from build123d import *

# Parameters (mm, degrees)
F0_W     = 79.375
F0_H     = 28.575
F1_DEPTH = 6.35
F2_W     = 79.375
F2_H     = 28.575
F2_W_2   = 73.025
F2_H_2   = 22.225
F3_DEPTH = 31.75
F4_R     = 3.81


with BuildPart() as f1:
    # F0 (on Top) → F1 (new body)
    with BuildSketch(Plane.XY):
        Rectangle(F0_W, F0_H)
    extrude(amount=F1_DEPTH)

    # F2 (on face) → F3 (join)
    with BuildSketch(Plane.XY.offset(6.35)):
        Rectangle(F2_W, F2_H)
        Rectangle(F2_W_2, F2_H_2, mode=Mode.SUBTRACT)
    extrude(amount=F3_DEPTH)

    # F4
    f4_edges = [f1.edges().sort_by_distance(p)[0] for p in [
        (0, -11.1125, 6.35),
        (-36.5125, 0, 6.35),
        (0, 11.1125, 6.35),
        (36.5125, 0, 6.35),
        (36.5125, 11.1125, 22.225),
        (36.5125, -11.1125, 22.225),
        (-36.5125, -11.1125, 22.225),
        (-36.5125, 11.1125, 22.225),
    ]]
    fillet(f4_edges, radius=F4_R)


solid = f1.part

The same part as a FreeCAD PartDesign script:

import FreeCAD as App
import Part
import Sketcher
Q = App.Units.Quantity


def edges_at(feature, points):
    """Names of the edges that pass closest to the given points."""
    edges = feature.Shape.Edges
    near = lambda p: min(range(len(edges)), key=lambda i: edges[i].distToShape(Part.Vertex(*p))[0])
    return sorted({f"Edge{near(p) + 1}" for p in points})


def add_polygon(sketch, points):
    """Adds a closed chain of lines whose ends are joined by coincident constraints."""
    first, n = sketch.GeometryCount, len(points)
    for a, b in zip(points, points[1:] + points[:1]):
        sketch.addGeometry(Part.LineSegment(App.Vector(*a, 0), App.Vector(*b, 0)), False)
    for i in range(n):
        sketch.addConstraint(Sketcher.Constraint("Coincident", first + i, 2, first + (i + 1) % n, 1))

doc = App.newDocument("Part")
body = doc.addObject("PartDesign::Body", "Body")

sketch1 = body.newObject("Sketcher::SketchObject", "Sketch")
sketch1.AttachmentSupport = (doc.getObject("XY_Plane"), [""])
sketch1.MapMode = "FlatFace"
add_polygon(sketch1, [(-40, 14), (-40, -14), (40, -14), (40, 14)])
sketch1.addConstraint([
    Sketcher.Constraint("Vertical", 0),
    Sketcher.Constraint("Horizontal", 1),
    Sketcher.Constraint("Vertical", 2),
    Sketcher.Constraint("Horizontal", 3),
    Sketcher.Constraint("Symmetric", 0, 2, 2, 2, -1, 1),
    Sketcher.Constraint("DistanceX", 1, 1, 1, 2, Q("3.125 in")),
    Sketcher.Constraint("DistanceY", 0, 2, 0, 1, Q("1.125 in")),
])
pad1 = body.newObject("PartDesign::Pad", "Pad")
pad1.Profile = sketch1
pad1.Length = Q("0.25 in")

sketch2 = body.newObject("Sketcher::SketchObject", "Sketch001")
sketch2.AttachmentSupport = (doc.getObject("XY_Plane"), [""])
sketch2.MapMode = "FlatFace"
sketch2.AttachmentOffset = App.Placement(App.Vector(0, 0, 0.25 * 25.4), App.Rotation())
add_polygon(sketch2, [(-40, 14), (-40, -14), (40, -14), (40, 14)])
add_polygon(sketch2, [(37, -11), (-37, -11), (-37, 11), (37, 11)])
sketch2.addConstraint([
    Sketcher.Constraint("Vertical", 0),
    Sketcher.Constraint("Horizontal", 1),
    Sketcher.Constraint("Vertical", 2),
    Sketcher.Constraint("Horizontal", 3),
    Sketcher.Constraint("Horizontal", 4),
    Sketcher.Constraint("Vertical", 5),
    Sketcher.Constraint("Horizontal", 6),
    Sketcher.Constraint("Vertical", 7),
    Sketcher.Constraint("Symmetric", 0, 2, 2, 2, -1, 1),
    Sketcher.Constraint("Symmetric", 4, 2, 6, 2, -1, 1),
    Sketcher.Constraint("DistanceY", 4, 2, 3, 2, Q("1 in")),
    Sketcher.Constraint("DistanceX", 4, 2, 1, 2, Q("3 in")),
    Sketcher.Constraint("DistanceX", 1, 1, 1, 2, Q("3.125 in")),
    Sketcher.Constraint("DistanceY", 0, 2, 0, 1, Q("1.125 in")),
])
pad2 = body.newObject("PartDesign::Pad", "Pad001")
pad2.Profile = sketch2
pad2.Length = Q("1.25 in")
doc.recompute()

fillet = body.newObject("PartDesign::Fillet", "Fillet")
fillet.Base = (pad2, edges_at(pad2, [
    (0, -11.113, 6.35),
    (-36.513, 0, 6.35),
    (0, 11.113, 6.35),
    (36.513, 0, 6.35),
    (36.513, 11.113, 22.225),
    (36.513, -11.113, 22.225),
    (-36.513, -11.113, 22.225),
    (-36.513, 11.113, 22.225),
]))
fillet.Radius = Q("0.15 in")

doc.recompute()
